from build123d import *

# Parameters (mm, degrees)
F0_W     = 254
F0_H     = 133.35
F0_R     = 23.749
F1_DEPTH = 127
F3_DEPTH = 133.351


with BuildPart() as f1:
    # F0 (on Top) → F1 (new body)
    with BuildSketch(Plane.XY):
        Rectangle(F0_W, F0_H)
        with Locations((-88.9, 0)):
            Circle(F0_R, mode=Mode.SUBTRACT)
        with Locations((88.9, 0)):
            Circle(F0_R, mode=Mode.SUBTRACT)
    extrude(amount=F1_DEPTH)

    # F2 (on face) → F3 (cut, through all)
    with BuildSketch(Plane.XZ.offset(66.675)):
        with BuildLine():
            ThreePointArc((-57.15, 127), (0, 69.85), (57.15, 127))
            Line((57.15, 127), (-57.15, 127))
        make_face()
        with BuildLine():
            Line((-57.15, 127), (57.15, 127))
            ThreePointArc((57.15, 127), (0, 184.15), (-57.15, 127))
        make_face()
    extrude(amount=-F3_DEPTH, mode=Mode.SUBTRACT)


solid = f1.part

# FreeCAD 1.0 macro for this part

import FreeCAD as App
import Part
import Sketcher
Q = App.Units.Quantity

doc = App.newDocument("Part")
body = doc.addObject("PartDesign::Body", "Body")

# Sketch on XY plane
sketch1 = body.newObject("Sketcher::SketchObject", "Sketch")
sketch1.AttachmentSupport = (doc.getObject("XY_Plane"), [""])
sketch1.MapMode = "FlatFace"
sketch1.addGeometry(Part.LineSegment(App.Vector(-127, 67, 0), App.Vector(-127, -67, 0)), False)
sketch1.addGeometry(Part.LineSegment(App.Vector(-127, -67, 0), App.Vector(127, -67, 0)), False)
sketch1.addGeometry(Part.LineSegment(App.Vector(127, -67, 0), App.Vector(127, 67, 0)), False)
sketch1.addGeometry(Part.LineSegment(App.Vector(127, 67, 0), App.Vector(-127, 67, 0)), False)
sketch1.addGeometry(Part.Circle(App.Vector(-89, 0, 0), App.Vector(0, 0, 1), 24), False)
sketch1.addGeometry(Part.Circle(App.Vector(89, 0, 0), App.Vector(0, 0, 1), 24), False)
sketch1.addConstraint(Sketcher.Constraint("Coincident", 0, 2, 1, 1))
sketch1.addConstraint(Sketcher.Constraint("Coincident", 1, 2, 2, 1))
sketch1.addConstraint(Sketcher.Constraint("Coincident", 2, 2, 3, 1))
sketch1.addConstraint(Sketcher.Constraint("Coincident", 3, 2, 0, 1))
sketch1.addConstraint(Sketcher.Constraint("Vertical", 0))
sketch1.addConstraint(Sketcher.Constraint("Horizontal", 1))
sketch1.addConstraint(Sketcher.Constraint("Vertical", 2))
sketch1.addConstraint(Sketcher.Constraint("Horizontal", 3))
sketch1.addConstraint(Sketcher.Constraint("Equal", 4, 5))
sketch1.addConstraint(Sketcher.Constraint("Symmetric", 4, 3, 5, 3, -1, 1))
sketch1.addConstraint(Sketcher.Constraint("Symmetric", 0, 2, 2, 2, -1, 1))
sketch1.addConstraint(Sketcher.Constraint("PointOnObject", 4, 3, -1))
sketch1.addConstraint(Sketcher.Constraint("Diameter", 4, Q("1.87 in")))
sketch1.addConstraint(Sketcher.Constraint("DistanceX", 1, 1, 1, 2, Q("10 in")))
sketch1.addConstraint(Sketcher.Constraint("DistanceX", 4, 3, 5, 3, Q("7 in")))
sketch1.addConstraint(Sketcher.Constraint("DistanceY", 0, 2, 0, 1, Q("5.25 in")))
pad1 = body.newObject("PartDesign::Pad", "Pad")
pad1.Profile = sketch1
pad1.Length = Q("5 in")

# Sketch on XZ plane
sketch2 = body.newObject("Sketcher::SketchObject", "Sketch001")
sketch2.AttachmentSupport = (doc.getObject("XZ_Plane"), [""])
sketch2.MapMode = "FlatFace"
sketch2.AttachmentOffset = App.Placement(App.Vector(0, 0, 2.625 * 25.4), App.Rotation())
sketch2.addGeometry(Part.Circle(App.Vector(0, 127, 0), App.Vector(0, 0, 1), 57), False)
sketch2.addConstraint(Sketcher.Constraint("PointOnObject", 0, 3, -2))
sketch2.addConstraint(Sketcher.Constraint("Diameter", 0, Q("4.5 in")))
sketch2.addConstraint(Sketcher.Constraint("DistanceY", -1, 1, 0, 3, Q("5 in")))
pocket1 = body.newObject("PartDesign::Pocket", "Pocket")
pocket1.Profile = sketch2
pocket1.Type = "ThroughAll"

doc.recompute()
